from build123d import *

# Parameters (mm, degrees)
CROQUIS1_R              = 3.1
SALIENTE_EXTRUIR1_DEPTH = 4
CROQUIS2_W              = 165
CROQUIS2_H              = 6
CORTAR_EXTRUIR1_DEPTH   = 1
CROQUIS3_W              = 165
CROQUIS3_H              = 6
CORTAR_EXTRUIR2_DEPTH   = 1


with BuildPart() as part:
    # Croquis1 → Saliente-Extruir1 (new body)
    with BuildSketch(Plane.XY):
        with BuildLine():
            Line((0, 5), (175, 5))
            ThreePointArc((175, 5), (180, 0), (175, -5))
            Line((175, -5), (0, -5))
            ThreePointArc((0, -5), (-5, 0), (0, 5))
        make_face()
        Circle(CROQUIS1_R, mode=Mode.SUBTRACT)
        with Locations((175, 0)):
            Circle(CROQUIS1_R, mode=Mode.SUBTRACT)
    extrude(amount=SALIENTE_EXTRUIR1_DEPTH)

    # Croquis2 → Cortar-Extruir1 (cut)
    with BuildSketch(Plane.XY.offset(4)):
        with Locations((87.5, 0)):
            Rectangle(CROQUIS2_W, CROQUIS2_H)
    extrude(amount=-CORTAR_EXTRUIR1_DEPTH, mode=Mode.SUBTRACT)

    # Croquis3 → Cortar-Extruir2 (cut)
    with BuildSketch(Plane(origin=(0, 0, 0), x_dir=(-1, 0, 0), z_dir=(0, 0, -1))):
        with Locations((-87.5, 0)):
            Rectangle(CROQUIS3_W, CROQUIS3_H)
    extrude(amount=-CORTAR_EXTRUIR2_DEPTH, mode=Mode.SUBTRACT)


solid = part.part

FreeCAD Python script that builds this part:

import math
import FreeCAD as App
import Part
import Sketcher
from FreeCAD import Vector


def add_polygon(sketch, points):
    """Adds a closed chain of lines whose ends are joined by coincident constraints."""
    first, n = sketch.GeometryCount, len(points)
    for a, b in zip(points, points[1:] + points[:1]):
        sketch.addGeometry(Part.LineSegment(App.Vector(*a, 0), App.Vector(*b, 0)), False)
    for i in range(n):
        sketch.addConstraint(Sketcher.Constraint("Coincident", first + i, 2, first + (i + 1) % n, 1))

doc = App.newDocument("Part")
body = doc.addObject("PartDesign::Body", "Body")

# Sketch on XY plane
sketch1 = body.newObject("Sketcher::SketchObject", "Sketch")
sketch1.AttachmentSupport = (doc.getObject("XY_Plane"), [""])
sketch1.MapMode = "FlatFace"
sketch1.addGeometry([
    Part.LineSegment(Vector(175, 5, 0), Vector(0, 5, 0)),  # 0
    Part.ArcOfCircle(Part.Circle(Vector(0, 0, 0), Vector(0, 0, 1), 5), math.radians(90), math.radians(270)),  # 1
    Part.LineSegment(Vector(0, -5, 0), Vector(175, -5, 0)),  # 2
    Part.ArcOfCircle(Part.Circle(Vector(175, 0, 0), Vector(0, 0, 1), 5), math.radians(-90), math.radians(90)),  # 3
    Part.Circle(Vector(175, 0, 0), Vector(0, 0, 1), 3.1),  # 4
    Part.Circle(Vector(0, 0, 0), Vector(0, 0, 1), 3.1),  # 5
], False)
sketch1.addConstraint([
    Sketcher.Constraint("Tangent", 0, 2, 1, 1),
    Sketcher.Constraint("Tangent", 1, 2, 2, 1),
    Sketcher.Constraint("Tangent", 2, 2, 3, 1),
    Sketcher.Constraint("Tangent", 3, 2, 0, 1),
    Sketcher.Constraint("Horizontal", 0),
    Sketcher.Constraint("Horizontal", 2),
    Sketcher.Constraint("Coincident", 1, 3, -1, 1),
    Sketcher.Constraint("Coincident", 5, 3, -1, 1),
    Sketcher.Constraint("Coincident", 4, 3, 3, 3),
    Sketcher.Constraint("Equal", 4, 5),
    Sketcher.Constraint("Radius", 1, 5.0),
    Sketcher.Constraint("Diameter", 4, 6.2),
    Sketcher.Constraint("DistanceX", 0, 2, 0, 1, 175.0),
])
pad1 = body.newObject("PartDesign::Pad", "Pad")
pad1.Profile = sketch1
pad1.Length = 4

# Sketch on XY plane
sketch2 = body.newObject("Sketcher::SketchObject", "Sketch001")
sketch2.AttachmentSupport = (doc.getObject("XY_Plane"), [""])
sketch2.MapMode = "FlatFace"
sketch2.AttachmentOffset = App.Placement(Vector(0, 0, 4), App.Rotation())
add_polygon(sketch2, [(5, 3), (5, -3), (170, -3), (170, 3)])  # lines 0-3
sketch2.addConstraint([
    Sketcher.Constraint("Vertical", 0),
    Sketcher.Constraint("Horizontal", 1),
    Sketcher.Constraint("Vertical", 2),
    Sketcher.Constraint("Horizontal", 3),
    Sketcher.Constraint("DistanceX", 1, 1, 1, 2, 165.0),
    Sketcher.Constraint("DistanceY", 0, 2, 0, 1, 6.0),
    Sketcher.Constraint("DistanceX", -1, 1, 0, 2, 5.0),
    Sketcher.Constraint("DistanceY", 0, 2, -1, 1, 3.0),
])
pocket1 = body.newObject("PartDesign::Pocket", "Pocket")
pocket1.Profile = sketch2
pocket1.Length = 1

# Sketch on XY plane
sketch3 = body.newObject("Sketcher::SketchObject", "Sketch002")
sketch3.AttachmentSupport = (doc.getObject("XY_Plane"), [""])
sketch3.MapMode = "FlatFace"
add_polygon(sketch3, [(170, 3), (170, -3), (5, -3), (5, 3)])  # lines 0-3
sketch3.addConstraint([
    Sketcher.Constraint("Vertical", 0),
    Sketcher.Constraint("Horizontal", 1),
    Sketcher.Constraint("Vertical", 2),
    Sketcher.Constraint("Horizontal", 3),
    Sketcher.Constraint("DistanceX", 1, 2, 1, 1, 165.0),
    Sketcher.Constraint("DistanceY", 0, 2, 0, 1, 6.0),
    Sketcher.Constraint("DistanceX", -1, 1, 0, 2, 170.0),
    Sketcher.Constraint("DistanceY", 0, 2, -1, 1, 3.0),
])
pocket2 = body.newObject("PartDesign::Pocket", "Pocket001")
pocket2.Profile = sketch3
pocket2.Length = 1
pocket2.Reversed = True

doc.recompute()
